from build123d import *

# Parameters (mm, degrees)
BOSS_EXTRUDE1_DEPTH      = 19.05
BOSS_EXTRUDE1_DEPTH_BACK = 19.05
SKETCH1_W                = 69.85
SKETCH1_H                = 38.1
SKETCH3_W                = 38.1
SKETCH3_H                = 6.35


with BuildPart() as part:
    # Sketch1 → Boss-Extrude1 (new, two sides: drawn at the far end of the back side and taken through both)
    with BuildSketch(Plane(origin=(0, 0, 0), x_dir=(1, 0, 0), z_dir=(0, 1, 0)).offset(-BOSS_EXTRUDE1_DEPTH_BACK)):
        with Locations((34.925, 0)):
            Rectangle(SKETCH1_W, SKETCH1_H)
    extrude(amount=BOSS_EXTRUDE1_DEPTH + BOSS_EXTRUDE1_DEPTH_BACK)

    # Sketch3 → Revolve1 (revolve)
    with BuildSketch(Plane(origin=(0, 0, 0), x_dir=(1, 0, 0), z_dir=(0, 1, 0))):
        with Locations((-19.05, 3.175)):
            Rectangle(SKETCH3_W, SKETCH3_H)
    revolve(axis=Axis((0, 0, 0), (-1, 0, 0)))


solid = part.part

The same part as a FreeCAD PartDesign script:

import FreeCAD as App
import Part
import Sketcher
Q = App.Units.Quantity

doc = App.newDocument("Part")
params = doc.addObject("Spreadsheet::Sheet", "Params")
for row, (alias, value) in enumerate([
    ("sketch1_height", "1.5 in"),
    ("sketch1_width", "2.75 in"),
    ("pad1_length", "0.75 in"),
    ("pad1_length2", "0.75 in"),
    ("sketch2_width", "1.5 in"),
    ("sketch2_height", "0.25 in"),
    ("revolution_angle", "360 deg"),
], start=1):
    params.set(f"A{row}", alias)
    params.set(f"B{row}", "=" + value)
    params.setAlias(f"B{row}", alias)

body = doc.addObject("PartDesign::Body", "Body")

sketch1 = body.newObject("Sketcher::SketchObject", "Sketch")
sketch1.AttachmentSupport = (doc.getObject("XZ_Plane"), [""])
sketch1.MapMode = "FlatFace"
sketch1.addGeometry(Part.LineSegment(App.Vector(0, -19.05, 0), App.Vector(0, 19.05, 0)), False)
sketch1.addGeometry(Part.LineSegment(App.Vector(0, 19.05, 0), App.Vector(69.85, 19.05, 0)), False)
sketch1.addGeometry(Part.LineSegment(App.Vector(69.85, 19.05, 0), App.Vector(69.85, -19.05, 0)), False)
sketch1.addGeometry(Part.LineSegment(App.Vector(69.85, -19.05, 0), App.Vector(0, -19.05, 0)), False)
sketch1.addConstraint(Sketcher.Constraint("Coincident", 0, 2, 1, 1))
sketch1.addConstraint(Sketcher.Constraint("Coincident", 1, 2, 2, 1))
sketch1.addConstraint(Sketcher.Constraint("Coincident", 2, 2, 3, 1))
sketch1.addConstraint(Sketcher.Constraint("Coincident", 3, 2, 0, 1))
sketch1.addConstraint(Sketcher.Constraint("Vertical", 0))
sketch1.addConstraint(Sketcher.Constraint("Horizontal", 1))
sketch1.addConstraint(Sketcher.Constraint("Vertical", 2))
sketch1.addConstraint(Sketcher.Constraint("Horizontal", 3))
sketch1.addConstraint(Sketcher.Constraint("Symmetric", 0, 2, 3, 2, -1, 1))
sketch1.addConstraint(Sketcher.Constraint("DistanceY", 0, 1, 0, 2, Q("1.5 in")))
sketch1.addConstraint(Sketcher.Constraint("DistanceX", 1, 1, 1, 2, Q("2.75 in")))
sketch1.setExpression("Constraints[9]", "Params.sketch1_height")
sketch1.setExpression("Constraints[10]", "Params.sketch1_width")
pad1 = body.newObject("PartDesign::Pad", "Pad")
pad1.Profile = sketch1
pad1.Type = "TwoLengths"
pad1.setExpression("Length", "Params.pad1_length")
pad1.setExpression("Length2", "Params.pad1_length2")
pad1.Reversed = True

sketch2 = body.newObject("Sketcher::SketchObject", "Sketch001")
sketch2.AttachmentSupport = (doc.getObject("XZ_Plane"), [""])
sketch2.MapMode = "FlatFace"
sketch2.addGeometry(Part.LineSegment(App.Vector(-38.1, -6.35, 0), App.Vector(-38.1, 0, 0)), False)
sketch2.addGeometry(Part.LineSegment(App.Vector(-38.1, 0, 0), App.Vector(0, 0, 0)), False)
sketch2.addGeometry(Part.LineSegment(App.Vector(0, 0, 0), App.Vector(0, -6.35, 0)), False)
sketch2.addGeometry(Part.LineSegment(App.Vector(0, -6.35, 0), App.Vector(-38.1, -6.35, 0)), False)
sketch2.addConstraint(Sketcher.Constraint("Coincident", 0, 2, 1, 1))
sketch2.addConstraint(Sketcher.Constraint("Coincident", 1, 2, 2, 1))
sketch2.addConstraint(Sketcher.Constraint("Coincident", 2, 2, 3, 1))
sketch2.addConstraint(Sketcher.Constraint("Coincident", 3, 2, 0, 1))
sketch2.addConstraint(Sketcher.Constraint("Vertical", 0))
sketch2.addConstraint(Sketcher.Constraint("Horizontal", 1))
sketch2.addConstraint(Sketcher.Constraint("Vertical", 2))
sketch2.addConstraint(Sketcher.Constraint("Horizontal", 3))
sketch2.addConstraint(Sketcher.Constraint("Coincident", 1, 2, -1, 1))
sketch2.addConstraint(Sketcher.Constraint("DistanceX", 1, 1, 1, 2, Q("1.5 in")))
sketch2.addConstraint(Sketcher.Constraint("DistanceY", 0, 1, 0, 2, Q("0.25 in")))
sketch2.setExpression("Constraints[9]", "Params.sketch2_width")
sketch2.setExpression("Constraints[10]", "Params.sketch2_height")
revolution = body.newObject("PartDesign::Revolution", "Revolution")
revolution.Profile = sketch2
revolution.ReferenceAxis = (sketch2, ["H_Axis"])
revolution.setExpression("Angle", "Params.revolution_angle")

doc.recompute()
